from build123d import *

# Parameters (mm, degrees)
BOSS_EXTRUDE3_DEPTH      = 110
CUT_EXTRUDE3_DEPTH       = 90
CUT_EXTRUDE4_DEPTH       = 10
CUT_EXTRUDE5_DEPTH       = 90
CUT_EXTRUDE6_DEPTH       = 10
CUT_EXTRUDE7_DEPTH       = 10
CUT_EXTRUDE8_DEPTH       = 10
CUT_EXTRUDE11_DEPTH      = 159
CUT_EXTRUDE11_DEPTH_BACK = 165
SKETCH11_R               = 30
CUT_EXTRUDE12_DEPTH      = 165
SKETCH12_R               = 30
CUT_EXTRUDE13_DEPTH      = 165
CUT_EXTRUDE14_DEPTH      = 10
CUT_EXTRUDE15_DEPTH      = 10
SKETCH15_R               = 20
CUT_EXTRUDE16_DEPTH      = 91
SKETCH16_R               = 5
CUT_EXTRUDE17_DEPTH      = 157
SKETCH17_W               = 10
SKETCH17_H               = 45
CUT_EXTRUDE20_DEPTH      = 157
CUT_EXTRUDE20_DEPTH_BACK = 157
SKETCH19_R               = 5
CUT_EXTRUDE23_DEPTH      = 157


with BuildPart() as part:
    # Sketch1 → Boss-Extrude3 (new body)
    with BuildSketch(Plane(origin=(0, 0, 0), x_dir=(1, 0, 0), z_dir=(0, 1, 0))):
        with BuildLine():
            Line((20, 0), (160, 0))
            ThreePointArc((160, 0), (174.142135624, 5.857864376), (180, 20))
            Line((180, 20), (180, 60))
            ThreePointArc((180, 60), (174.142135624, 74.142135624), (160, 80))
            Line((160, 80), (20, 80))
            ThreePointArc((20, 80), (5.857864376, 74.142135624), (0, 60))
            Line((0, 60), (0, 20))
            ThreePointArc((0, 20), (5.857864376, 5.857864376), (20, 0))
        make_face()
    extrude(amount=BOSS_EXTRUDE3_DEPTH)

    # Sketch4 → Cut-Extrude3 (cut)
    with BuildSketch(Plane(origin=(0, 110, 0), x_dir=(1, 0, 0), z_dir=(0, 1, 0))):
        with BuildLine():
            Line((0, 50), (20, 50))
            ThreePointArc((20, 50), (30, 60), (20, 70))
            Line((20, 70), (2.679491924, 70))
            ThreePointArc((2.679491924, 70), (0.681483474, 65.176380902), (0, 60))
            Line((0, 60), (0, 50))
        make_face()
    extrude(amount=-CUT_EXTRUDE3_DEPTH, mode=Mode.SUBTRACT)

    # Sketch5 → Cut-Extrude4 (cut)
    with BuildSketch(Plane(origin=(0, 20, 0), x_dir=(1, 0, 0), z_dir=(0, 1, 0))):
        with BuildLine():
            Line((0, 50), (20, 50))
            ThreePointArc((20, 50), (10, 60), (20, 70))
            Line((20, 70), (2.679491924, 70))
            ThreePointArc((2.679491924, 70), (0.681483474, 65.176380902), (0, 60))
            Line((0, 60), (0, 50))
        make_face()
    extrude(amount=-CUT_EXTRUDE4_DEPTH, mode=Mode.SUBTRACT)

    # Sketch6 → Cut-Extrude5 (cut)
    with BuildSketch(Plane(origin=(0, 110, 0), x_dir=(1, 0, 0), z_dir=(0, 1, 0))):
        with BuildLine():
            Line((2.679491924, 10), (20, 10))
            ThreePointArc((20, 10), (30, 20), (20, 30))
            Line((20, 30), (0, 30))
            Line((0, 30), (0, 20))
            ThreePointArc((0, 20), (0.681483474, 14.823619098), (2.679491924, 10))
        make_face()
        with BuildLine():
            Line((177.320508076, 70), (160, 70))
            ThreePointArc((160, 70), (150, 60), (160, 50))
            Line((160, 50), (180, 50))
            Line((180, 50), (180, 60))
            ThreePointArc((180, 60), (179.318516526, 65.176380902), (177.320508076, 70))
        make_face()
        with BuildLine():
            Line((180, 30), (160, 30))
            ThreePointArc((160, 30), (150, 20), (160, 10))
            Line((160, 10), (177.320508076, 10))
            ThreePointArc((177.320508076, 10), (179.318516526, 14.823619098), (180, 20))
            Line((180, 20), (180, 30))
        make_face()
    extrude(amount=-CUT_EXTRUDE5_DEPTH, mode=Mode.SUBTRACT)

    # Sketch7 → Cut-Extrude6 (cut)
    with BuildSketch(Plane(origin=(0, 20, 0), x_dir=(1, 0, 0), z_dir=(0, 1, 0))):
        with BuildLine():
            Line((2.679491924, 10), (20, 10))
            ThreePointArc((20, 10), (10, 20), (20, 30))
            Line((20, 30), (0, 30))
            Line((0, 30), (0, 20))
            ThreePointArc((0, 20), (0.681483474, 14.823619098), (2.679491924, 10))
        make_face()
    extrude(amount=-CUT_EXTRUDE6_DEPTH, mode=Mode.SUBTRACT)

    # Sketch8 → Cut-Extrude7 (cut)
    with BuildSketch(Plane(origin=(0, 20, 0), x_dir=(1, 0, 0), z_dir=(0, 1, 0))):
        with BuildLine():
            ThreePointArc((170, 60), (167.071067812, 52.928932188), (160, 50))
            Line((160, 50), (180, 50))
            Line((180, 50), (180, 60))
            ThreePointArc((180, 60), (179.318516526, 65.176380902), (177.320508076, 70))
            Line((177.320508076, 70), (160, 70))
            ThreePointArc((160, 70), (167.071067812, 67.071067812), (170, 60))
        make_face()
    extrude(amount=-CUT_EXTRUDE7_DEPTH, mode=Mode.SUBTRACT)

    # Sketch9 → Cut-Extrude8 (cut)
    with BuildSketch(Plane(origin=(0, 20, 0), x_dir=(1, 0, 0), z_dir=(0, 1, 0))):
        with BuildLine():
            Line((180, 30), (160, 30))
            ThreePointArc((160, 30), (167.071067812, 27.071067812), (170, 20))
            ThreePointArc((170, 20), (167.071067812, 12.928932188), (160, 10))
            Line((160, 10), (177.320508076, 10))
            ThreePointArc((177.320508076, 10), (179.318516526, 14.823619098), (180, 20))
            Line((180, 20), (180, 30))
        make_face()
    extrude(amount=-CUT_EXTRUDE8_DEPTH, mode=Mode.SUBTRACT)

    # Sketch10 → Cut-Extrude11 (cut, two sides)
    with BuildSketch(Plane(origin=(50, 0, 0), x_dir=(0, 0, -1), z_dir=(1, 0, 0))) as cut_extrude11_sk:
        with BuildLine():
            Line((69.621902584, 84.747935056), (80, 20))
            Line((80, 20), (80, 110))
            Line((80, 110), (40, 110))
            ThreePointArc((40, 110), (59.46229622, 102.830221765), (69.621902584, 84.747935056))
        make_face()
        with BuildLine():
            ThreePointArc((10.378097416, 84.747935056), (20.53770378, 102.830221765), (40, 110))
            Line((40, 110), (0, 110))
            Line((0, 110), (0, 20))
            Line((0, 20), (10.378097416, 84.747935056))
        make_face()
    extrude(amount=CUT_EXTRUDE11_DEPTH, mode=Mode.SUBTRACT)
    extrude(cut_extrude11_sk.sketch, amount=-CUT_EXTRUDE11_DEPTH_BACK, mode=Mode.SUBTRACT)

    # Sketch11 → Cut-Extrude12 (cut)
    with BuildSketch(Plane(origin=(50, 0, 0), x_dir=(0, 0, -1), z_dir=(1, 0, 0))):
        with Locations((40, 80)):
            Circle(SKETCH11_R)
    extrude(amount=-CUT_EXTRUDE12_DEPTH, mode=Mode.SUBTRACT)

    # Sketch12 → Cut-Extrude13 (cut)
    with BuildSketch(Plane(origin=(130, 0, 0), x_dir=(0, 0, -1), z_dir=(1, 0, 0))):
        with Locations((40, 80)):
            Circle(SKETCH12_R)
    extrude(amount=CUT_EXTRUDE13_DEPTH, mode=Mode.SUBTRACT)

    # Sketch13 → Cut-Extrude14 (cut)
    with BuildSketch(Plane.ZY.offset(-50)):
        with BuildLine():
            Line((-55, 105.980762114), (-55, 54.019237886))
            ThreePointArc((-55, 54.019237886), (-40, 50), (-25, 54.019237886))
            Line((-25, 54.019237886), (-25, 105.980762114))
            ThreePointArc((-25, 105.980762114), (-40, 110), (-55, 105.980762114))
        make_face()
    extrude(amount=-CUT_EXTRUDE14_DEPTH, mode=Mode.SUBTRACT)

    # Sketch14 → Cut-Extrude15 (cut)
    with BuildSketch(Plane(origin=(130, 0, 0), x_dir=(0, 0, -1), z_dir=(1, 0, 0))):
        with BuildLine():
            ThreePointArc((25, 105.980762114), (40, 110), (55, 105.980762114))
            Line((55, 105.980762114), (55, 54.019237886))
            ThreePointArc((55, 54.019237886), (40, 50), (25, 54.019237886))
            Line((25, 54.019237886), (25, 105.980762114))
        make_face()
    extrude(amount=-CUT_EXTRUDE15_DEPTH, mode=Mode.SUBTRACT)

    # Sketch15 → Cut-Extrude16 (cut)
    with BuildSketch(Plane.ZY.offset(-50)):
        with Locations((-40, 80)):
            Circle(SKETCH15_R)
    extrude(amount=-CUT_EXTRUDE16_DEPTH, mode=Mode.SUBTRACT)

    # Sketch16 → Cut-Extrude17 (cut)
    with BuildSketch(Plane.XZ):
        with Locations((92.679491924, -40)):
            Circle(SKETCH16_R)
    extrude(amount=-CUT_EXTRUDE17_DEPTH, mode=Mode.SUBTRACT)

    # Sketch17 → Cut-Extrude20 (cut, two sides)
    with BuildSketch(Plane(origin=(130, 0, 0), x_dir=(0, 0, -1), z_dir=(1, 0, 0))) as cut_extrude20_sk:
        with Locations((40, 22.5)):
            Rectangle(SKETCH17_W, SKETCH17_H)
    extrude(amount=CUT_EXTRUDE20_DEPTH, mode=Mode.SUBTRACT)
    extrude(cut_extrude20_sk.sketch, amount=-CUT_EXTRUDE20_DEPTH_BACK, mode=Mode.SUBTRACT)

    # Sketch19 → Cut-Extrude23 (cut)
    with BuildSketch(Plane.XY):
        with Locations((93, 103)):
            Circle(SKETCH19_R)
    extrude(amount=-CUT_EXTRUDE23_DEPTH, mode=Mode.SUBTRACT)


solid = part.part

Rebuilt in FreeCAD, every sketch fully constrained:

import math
import FreeCAD as App
import Part
import Sketcher


def add_polygon(sketch, points):
    """Adds a closed chain of lines whose ends are joined by coincident constraints."""
    first, n = sketch.GeometryCount, len(points)
    for a, b in zip(points, points[1:] + points[:1]):
        sketch.addGeometry(Part.LineSegment(App.Vector(*a, 0), App.Vector(*b, 0)), False)
    for i in range(n):
        sketch.addConstraint(Sketcher.Constraint("Coincident", first + i, 2, first + (i + 1) % n, 1))

doc = App.newDocument("Part")
body = doc.addObject("PartDesign::Body", "Body")

# Sketch on XZ plane
sketch1 = body.newObject("Sketcher::SketchObject", "Sketch")
sketch1.AttachmentSupport = (doc.getObject("XZ_Plane"), [""])
sketch1.MapMode = "FlatFace"
sketch1.addGeometry(Part.LineSegment(App.Vector(20, 0, 0), App.Vector(160, 0, 0)), False)
sketch1.addGeometry(Part.ArcOfCircle(Part.Circle(App.Vector(160, -20, 0), App.Vector(0, 0, 1), 20), math.radians(0), math.radians(90)), False)
sketch1.addGeometry(Part.LineSegment(App.Vector(180, -20, 0), App.Vector(180, -60, 0)), False)
sketch1.addGeometry(Part.ArcOfCircle(Part.Circle(App.Vector(160, -60, 0), App.Vector(0, 0, 1), 20), math.radians(-90), math.radians(0)), False)
sketch1.addGeometry(Part.LineSegment(App.Vector(160, -80, 0), App.Vector(20, -80, 0)), False)
sketch1.addGeometry(Part.ArcOfCircle(Part.Circle(App.Vector(20, -60, 0), App.Vector(0, 0, 1), 20), math.radians(180), math.radians(270)), False)
sketch1.addGeometry(Part.LineSegment(App.Vector(0, -60, 0), App.Vector(0, -20, 0)), False)
sketch1.addGeometry(Part.ArcOfCircle(Part.Circle(App.Vector(20, -20, 0), App.Vector(0, 0, 1), 20), math.radians(90), math.radians(180)), False)
sketch1.addConstraint(Sketcher.Constraint("Tangent", 0, 2, 1, 2))
sketch1.addConstraint(Sketcher.Constraint("Tangent", 1, 1, 2, 1))
sketch1.addConstraint(Sketcher.Constraint("Tangent", 2, 2, 3, 2))
sketch1.addConstraint(Sketcher.Constraint("Tangent", 3, 1, 4, 1))
sketch1.addConstraint(Sketcher.Constraint("Tangent", 4, 2, 5, 2))
sketch1.addConstraint(Sketcher.Constraint("Tangent", 5, 1, 6, 1))
sketch1.addConstraint(Sketcher.Constraint("Tangent", 6, 2, 7, 2))
sketch1.addConstraint(Sketcher.Constraint("Tangent", 7, 1, 0, 1))
sketch1.addConstraint(Sketcher.Constraint("Horizontal", 0))
sketch1.addConstraint(Sketcher.Constraint("Vertical", 2))
sketch1.addConstraint(Sketcher.Constraint("Horizontal", 4))
sketch1.addConstraint(Sketcher.Constraint("Vertical", 6))
sketch1.addConstraint(Sketcher.Constraint("Equal", 1, 3))
sketch1.addConstraint(Sketcher.Constraint("Equal", 3, 5))
sketch1.addConstraint(Sketcher.Constraint("Equal", 5, 7))
sketch1.addConstraint(Sketcher.Constraint("PointOnObject", 0, 2, -1))
sketch1.addConstraint(Sketcher.Constraint("PointOnObject", 5, 1, -2))
sketch1.addConstraint(Sketcher.Constraint("Radius", 1, 20.0))
sketch1.addConstraint(Sketcher.Constraint("DistanceX", 0, 1, 0, 2, 140.0))
sketch1.addConstraint(Sketcher.Constraint("DistanceY", 2, 2, 2, 1, 40.0))
pad1 = body.newObject("PartDesign::Pad", "Pad")
pad1.Profile = sketch1
pad1.Length = 110
pad1.Reversed = True

# Sketch on XZ plane
sketch2 = body.newObject("Sketcher::SketchObject", "Sketch001")
sketch2.AttachmentSupport = (doc.getObject("XZ_Plane"), [""])
sketch2.MapMode = "FlatFace"
sketch2.AttachmentOffset = App.Placement(App.Vector(0, 0, -110), App.Rotation())
sketch2.addGeometry(Part.LineSegment(App.Vector(0, -50, 0), App.Vector(20, -50, 0)), False)
sketch2.addGeometry(Part.ArcOfCircle(Part.Circle(App.Vector(20, -60, 0), App.Vector(0, 0, 1), 10), math.radians(-90), math.radians(90)), False)
sketch2.addGeometry(Part.LineSegment(App.Vector(20, -70, 0), App.Vector(3, -70, 0)), False)
sketch2.addGeometry(Part.ArcOfCircle(Part.Circle(App.Vector(20, -60, 0), App.Vector(0, 0, 1), 20), math.radians(180), math.radians(210)), False)
sketch2.addGeometry(Part.LineSegment(App.Vector(0, -60, 0), App.Vector(0, -50, 0)), False)
sketch2.addConstraint(Sketcher.Constraint("Tangent", 0, 2, 1, 2))
sketch2.addConstraint(Sketcher.Constraint("Tangent", 1, 1, 2, 1))
sketch2.addConstraint(Sketcher.Constraint("Coincident", 2, 2, 3, 2))
sketch2.addConstraint(Sketcher.Constraint("Tangent", 3, 1, 4, 1))
sketch2.addConstraint(Sketcher.Constraint("Coincident", 4, 2, 0, 1))
sketch2.addConstraint(Sketcher.Constraint("Horizontal", 0))
sketch2.addConstraint(Sketcher.Constraint("Horizontal", 2))
sketch2.addConstraint(Sketcher.Constraint("Vertical", 4))
sketch2.addConstraint(Sketcher.Constraint("Coincident", 3, 3, 1, 3))
sketch2.addConstraint(Sketcher.Constraint("PointOnObject", 3, 1, -2))
sketch2.addConstraint(Sketcher.Constraint("Radius", 1, 10.0))
sketch2.addConstraint(Sketcher.Constraint("Radius", 3, 20.0))
sketch2.addConstraint(Sketcher.Constraint("DistanceY", 1, 3, -1, 1, 60.0))
pocket1 = body.newObject("PartDesign::Pocket", "Pocket")
pocket1.Profile = sketch2
pocket1.Length = 90
pocket1.Reversed = True

# Sketch on XZ plane
sketch3 = body.newObject("Sketcher::SketchObject", "Sketch002")
sketch3.AttachmentSupport = (doc.getObject("XZ_Plane"), [""])
sketch3.MapMode = "FlatFace"
sketch3.AttachmentOffset = App.Placement(App.Vector(0, 0, -20), App.Rotation())
sketch3.addGeometry(Part.LineSegment(App.Vector(0, -50, 0), App.Vector(20, -50, 0)), False)
sketch3.addGeometry(Part.ArcOfCircle(Part.Circle(App.Vector(20, -60, 0), App.Vector(0, 0, 1), 10), math.radians(90), math.radians(270)), False)
sketch3.addGeometry(Part.LineSegment(App.Vector(20, -70, 0), App.Vector(3, -70, 0)), False)
sketch3.addGeometry(Part.ArcOfCircle(Part.Circle(App.Vector(20, -60, 0), App.Vector(0, 0, 1), 20), math.radians(180), math.radians(210)), False)
sketch3.addGeometry(Part.LineSegment(App.Vector(0, -60, 0), App.Vector(0, -50, 0)), False)
sketch3.addConstraint(Sketcher.Constraint("Tangent", 0, 2, 1, 1))
sketch3.addConstraint(Sketcher.Constraint("Tangent", 1, 2, 2, 1))
sketch3.addConstraint(Sketcher.Constraint("Coincident", 2, 2, 3, 2))
sketch3.addConstraint(Sketcher.Constraint("Tangent", 3, 1, 4, 1))
sketch3.addConstraint(Sketcher.Constraint("Coincident", 4, 2, 0, 1))
sketch3.addConstraint(Sketcher.Constraint("Horizontal", 0))
sketch3.addConstraint(Sketcher.Constraint("Horizontal", 2))
sketch3.addConstraint(Sketcher.Constraint("Vertical", 4))
sketch3.addConstraint(Sketcher.Constraint("Coincident", 3, 3, 1, 3))
sketch3.addConstraint(Sketcher.Constraint("PointOnObject", 3, 1, -2))
sketch3.addConstraint(Sketcher.Constraint("Radius", 1, 10.0))
sketch3.addConstraint(Sketcher.Constraint("Radius", 3, 20.0))
sketch3.addConstraint(Sketcher.Constraint("DistanceY", 1, 3, -1, 1, 60.0))
pocket2 = body.newObject("PartDesign::Pocket", "Pocket001")
pocket2.Profile = sketch3
pocket2.Length = 10
pocket2.Reversed = True

# Sketch on XZ plane
sketch4 = body.newObject("Sketcher::SketchObject", "Sketch003")
sketch4.AttachmentSupport = (doc.getObject("XZ_Plane"), [""])
sketch4.MapMode = "FlatFace"
sketch4.AttachmentOffset = App.Placement(App.Vector(0, 0, -110), App.Rotation())
sketch4.addGeometry(Part.LineSegment(App.Vector(3, -10, 0), App.Vector(20, -10, 0)), False)
sketch4.addGeometry(Part.ArcOfCircle(Part.Circle(App.Vector(20, -20, 0), App.Vector(0, 0, 1), 10), math.radians(-90), math.radians(90)), False)
sketch4.addGeometry(Part.LineSegment(App.Vector(20, -30, 0), App.Vector(0, -30, 0)), False)
sketch4.addGeometry(Part.LineSegment(App.Vector(0, -30, 0), App.Vector(0, -20, 0)), False)
sketch4.addGeometry(Part.ArcOfCircle(Part.Circle(App.Vector(20, -20, 0), App.Vector(0, 0, 1), 20), math.radians(150), math.radians(180)), False)
sketch4.addGeometry(Part.LineSegment(App.Vector(177, -70, 0), App.Vector(160, -70, 0)), False)
sketch4.addGeometry(Part.ArcOfCircle(Part.Circle(App.Vector(160, -60, 0), App.Vector(0, 0, 1), 10), math.radians(90), math.radians(270)), False)
sketch4.addGeometry(Part.LineSegment(App.Vector(160, -50, 0), App.Vector(180, -50, 0)), False)
sketch4.addGeometry(Part.LineSegment(App.Vector(180, -50, 0), App.Vector(180, -60, 0)), False)
sketch4.addGeometry(Part.ArcOfCircle(Part.Circle(App.Vector(160, -60, 0), App.Vector(0, 0, 1), 20), math.radians(-30), math.radians(0)), False)
sketch4.addGeometry(Part.LineSegment(App.Vector(180, -30, 0), App.Vector(160, -30, 0)), False)
sketch4.addGeometry(Part.ArcOfCircle(Part.Circle(App.Vector(160, -20, 0), App.Vector(0, 0, 1), 10), math.radians(90), math.radians(270)), False)
sketch4.addGeometry(Part.LineSegment(App.Vector(160, -10, 0), App.Vector(177, -10, 0)), False)
sketch4.addGeometry(Part.ArcOfCircle(Part.Circle(App.Vector(160, -20, 0), App.Vector(0, 0, 1), 20), math.radians(0), math.radians(30)), False)
sketch4.addGeometry(Part.LineSegment(App.Vector(180, -20, 0), App.Vector(180, -30, 0)), False)
sketch4.addConstraint(Sketcher.Constraint("Tangent", 0, 2, 1, 2))
sketch4.addConstraint(Sketcher.Constraint("Tangent", 1, 1, 2, 1))
sketch4.addConstraint(Sketcher.Constraint("Coincident", 2, 2, 3, 1))
sketch4.addConstraint(Sketcher.Constraint("Tangent", 3, 2, 4, 2))
sketch4.addConstraint(Sketcher.Constraint("Coincident", 4, 1, 0, 1))
sketch4.addConstraint(Sketcher.Constraint("Tangent", 5, 2, 6, 2))
sketch4.addConstraint(Sketcher.Constraint("Tangent", 6, 1, 7, 1))
sketch4.addConstraint(Sketcher.Constraint("Coincident", 7, 2, 8, 1))
sketch4.addConstraint(Sketcher.Constraint("Tangent", 8, 2, 9, 2))
sketch4.addConstraint(Sketcher.Constraint("Coincident", 9, 1, 5, 1))
sketch4.addConstraint(Sketcher.Constraint("Tangent", 10, 2, 11, 2))
sketch4.addConstraint(Sketcher.Constraint("Tangent", 11, 1, 12, 1))
sketch4.addConstraint(Sketcher.Constraint("Coincident", 12, 2, 13, 2))
sketch4.addConstraint(Sketcher.Constraint("Tangent", 13, 1, 14, 1))
sketch4.addConstraint(Sketcher.Constraint("Coincident", 14, 2, 10, 1))
sketch4.addConstraint(Sketcher.Constraint("Horizontal", 0))
sketch4.addConstraint(Sketcher.Constraint("Horizontal", 2))
sketch4.addConstraint(Sketcher.Constraint("Vertical", 3))
sketch4.addConstraint(Sketcher.Constraint("Horizontal", 5))
sketch4.addConstraint(Sketcher.Constraint("Horizontal", 7))
sketch4.addConstraint(Sketcher.Constraint("Vertical", 8))
sketch4.addConstraint(Sketcher.Constraint("Horizontal", 10))
sketch4.addConstraint(Sketcher.Constraint("Horizontal", 12))
sketch4.addConstraint(Sketcher.Constraint("Vertical", 14))
sketch4.addConstraint(Sketcher.Constraint("Coincident", 4, 3, 1, 3))
sketch4.addConstraint(Sketcher.Constraint("Coincident", 9, 3, 6, 3))
sketch4.addConstraint(Sketcher.Constraint("Coincident", 13, 3, 11, 3))
sketch4.addConstraint(Sketcher.Constraint("Equal", 1, 6))
sketch4.addConstraint(Sketcher.Constraint("Equal", 4, 9))
sketch4.addConstraint(Sketcher.Constraint("Equal", 6, 11))
sketch4.addConstraint(Sketcher.Constraint("Equal", 9, 13))
sketch4.addConstraint(Sketcher.Constraint("PointOnObject", 2, 2, -2))
sketch4.addConstraint(Sketcher.Constraint("Horizontal", 4, 3, 11, 3))
sketch4.addConstraint(Sketcher.Constraint("Vertical", 9, 3, 11, 3))
sketch4.addConstraint(Sketcher.Constraint("Radius", 1, 10.0))
sketch4.addConstraint(Sketcher.Constraint("Radius", 4, 20.0))
sketch4.addConstraint(Sketcher.Constraint("DistanceY", 1, 3, -1, 1, 20.0))
sketch4.addConstraint(Sketcher.Constraint("DistanceX", -1, 1, 6, 3, 160.0))
sketch4.addConstraint(Sketcher.Constraint("DistanceY", 6, 3, -1, 1, 60.0))
pocket3 = body.newObject("PartDesign::Pocket", "Pocket002")
pocket3.Profile = sketch4
pocket3.Length = 90
pocket3.Reversed = True

# Sketch on XZ plane
sketch5 = body.newObject("Sketcher::SketchObject", "Sketch004")
sketch5.AttachmentSupport = (doc.getObject("XZ_Plane"), [""])
sketch5.MapMode = "FlatFace"
sketch5.AttachmentOffset = App.Placement(App.Vector(0, 0, -20), App.Rotation())
sketch5.addGeometry(Part.LineSegment(App.Vector(3, -10, 0), App.Vector(20, -10, 0)), False)
sketch5.addGeometry(Part.ArcOfCircle(Part.Circle(App.Vector(20, -20, 0), App.Vector(0, 0, 1), 10), math.radians(90), math.radians(270)), False)
sketch5.addGeometry(Part.LineSegment(App.Vector(20, -30, 0), App.Vector(0, -30, 0)), False)
sketch5.addGeometry(Part.LineSegment(App.Vector(0, -30, 0), App.Vector(0, -20, 0)), False)
sketch5.addGeometry(Part.ArcOfCircle(Part.Circle(App.Vector(20, -20, 0), App.Vector(0, 0, 1), 20), math.radians(150), math.radians(180)), False)
sketch5.addConstraint(Sketcher.Constraint("Tangent", 0, 2, 1, 1))
sketch5.addConstraint(Sketcher.Constraint("Tangent", 1, 2, 2, 1))
sketch5.addConstraint(Sketcher.Constraint("Coincident", 2, 2, 3, 1))
sketch5.addConstraint(Sketcher.Constraint("Tangent", 3, 2, 4, 2))
sketch5.addConstraint(Sketcher.Constraint("Coincident", 4, 1, 0, 1))
sketch5.addConstraint(Sketcher.Constraint("Horizontal", 0))
sketch5.addConstraint(Sketcher.Constraint("Horizontal", 2))
sketch5.addConstraint(Sketcher.Constraint("Vertical", 3))
sketch5.addConstraint(Sketcher.Constraint("Coincident", 4, 3, 1, 3))
sketch5.addConstraint(Sketcher.Constraint("PointOnObject", 2, 2, -2))
sketch5.addConstraint(Sketcher.Constraint("Radius", 1, 10.0))
sketch5.addConstraint(Sketcher.Constraint("Radius", 4, 20.0))
sketch5.addConstraint(Sketcher.Constraint("DistanceY", 1, 3, -1, 1, 20.0))
pocket4 = body.newObject("PartDesign::Pocket", "Pocket003")
pocket4.Profile = sketch5
pocket4.Length = 10
pocket4.Reversed = True

# Sketch on XZ plane
sketch6 = body.newObject("Sketcher::SketchObject", "Sketch005")
sketch6.AttachmentSupport = (doc.getObject("XZ_Plane"), [""])
sketch6.MapMode = "FlatFace"
sketch6.AttachmentOffset = App.Placement(App.Vector(0, 0, -20), App.Rotation())
sketch6.addGeometry(Part.ArcOfCircle(Part.Circle(App.Vector(160, -60, 0), App.Vector(0, 0, 1), 10), math.radians(0), math.radians(90)), False)
sketch6.addGeometry(Part.LineSegment(App.Vector(160, -50, 0), App.Vector(180, -50, 0)), False)
sketch6.addGeometry(Part.LineSegment(App.Vector(180, -50, 0), App.Vector(180, -60, 0)), False)
sketch6.addGeometry(Part.ArcOfCircle(Part.Circle(App.Vector(160, -60, 0), App.Vector(0, 0, 1), 20), math.radians(-30), math.radians(0)), False)
sketch6.addGeometry(Part.LineSegment(App.Vector(177, -70, 0), App.Vector(160, -70, 0)), False)
sketch6.addGeometry(Part.ArcOfCircle(Part.Circle(App.Vector(160, -60, 0), App.Vector(0, 0, 1), 10), math.radians(-90), math.radians(0)), False)
sketch6.addConstraint(Sketcher.Constraint("Tangent", 0, 2, 1, 1))
sketch6.addConstraint(Sketcher.Constraint("Coincident", 1, 2, 2, 1))
sketch6.addConstraint(Sketcher.Constraint("Tangent", 2, 2, 3, 2))
sketch6.addConstraint(Sketcher.Constraint("Coincident", 3, 1, 4, 1))
sketch6.addConstraint(Sketcher.Constraint("Tangent", 4, 2, 5, 1))
sketch6.addConstraint(Sketcher.Constraint("Tangent", 5, 2, 0, 1))
sketch6.addConstraint(Sketcher.Constraint("Horizontal", 1))
sketch6.addConstraint(Sketcher.Constraint("Vertical", 2))
sketch6.addConstraint(Sketcher.Constraint("Horizontal", 4))
sketch6.addConstraint(Sketcher.Constraint("Coincident", 3, 3, 0, 3))
sketch6.addConstraint(Sketcher.Constraint("Equal", 0, 5))
sketch6.addConstraint(Sketcher.Constraint("Horizontal", 2, 2, 5, 2))
sketch6.addConstraint(Sketcher.Constraint("Radius", 0, 10.0))
sketch6.addConstraint(Sketcher.Constraint("Radius", 3, 20.0))
sketch6.addConstraint(Sketcher.Constraint("DistanceX", -1, 1, 0, 3, 160.0))
sketch6.addConstraint(Sketcher.Constraint("DistanceY", 0, 3, -1, 1, 60.0))
pocket5 = body.newObject("PartDesign::Pocket", "Pocket004")
pocket5.Profile = sketch6
pocket5.Length = 10
pocket5.Reversed = True

# Sketch on XZ plane
sketch7 = body.newObject("Sketcher::SketchObject", "Sketch006")
sketch7.AttachmentSupport = (doc.getObject("XZ_Plane"), [""])
sketch7.MapMode = "FlatFace"
sketch7.AttachmentOffset = App.Placement(App.Vector(0, 0, -20), App.Rotation())
sketch7.addGeometry(Part.LineSegment(App.Vector(180, -30, 0), App.Vector(160, -30, 0)), False)
sketch7.addGeometry(Part.ArcOfCircle(Part.Circle(App.Vector(160, -20, 0), App.Vector(0, 0, 1), 10), math.radians(-90), math.radians(0)), False)
sketch7.addGeometry(Part.ArcOfCircle(Part.Circle(App.Vector(160, -20, 0), App.Vector(0, 0, 1), 10), math.radians(0), math.radians(90)), False)
sketch7.addGeometry(Part.LineSegment(App.Vector(160, -10, 0), App.Vector(177, -10, 0)), False)
sketch7.addGeometry(Part.ArcOfCircle(Part.Circle(App.Vector(160, -20, 0), App.Vector(0, 0, 1), 20), math.radians(0), math.radians(30)), False)
sketch7.addGeometry(Part.LineSegment(App.Vector(180, -20, 0), App.Vector(180, -30, 0)), False)
sketch7.addConstraint(Sketcher.Constraint("Tangent", 0, 2, 1, 1))
sketch7.addConstraint(Sketcher.Constraint("Tangent", 1, 2, 2, 1))
sketch7.addConstraint(Sketcher.Constraint("Tangent", 2, 2, 3, 1))
sketch7.addConstraint(Sketcher.Constraint("Coincident", 3, 2, 4, 2))
sketch7.addConstraint(Sketcher.Constraint("Tangent", 4, 1, 5, 1))
sketch7.addConstraint(Sketcher.Constraint("Coincident", 5, 2, 0, 1))
sketch7.addConstraint(Sketcher.Constraint("Horizontal", 0))
sketch7.addConstraint(Sketcher.Constraint("Horizontal", 3))
sketch7.addConstraint(Sketcher.Constraint("Vertical", 5))
sketch7.addConstraint(Sketcher.Constraint("Coincident", 4, 3, 1, 3))
sketch7.addConstraint(Sketcher.Constraint("Equal", 1, 2))
sketch7.addConstraint(Sketcher.Constraint("Horizontal", 4, 3, 1, 2))
sketch7.addConstraint(Sketcher.Constraint("Radius", 1, 10.0))
sketch7.addConstraint(Sketcher.Constraint("Radius", 4, 20.0))
sketch7.addConstraint(Sketcher.Constraint("DistanceX", -1, 1, 1, 3, 160.0))
sketch7.addConstraint(Sketcher.Constraint("DistanceY", 1, 3, -1, 1, 20.0))
pocket6 = body.newObject("PartDesign::Pocket", "Pocket005")
pocket6.Profile = sketch7
pocket6.Length = 10
pocket6.Reversed = True

# Sketch on YZ plane
sketch8 = body.newObject("Sketcher::SketchObject", "Sketch007")
sketch8.AttachmentSupport = (doc.getObject("YZ_Plane"), [""])
sketch8.MapMode = "FlatFace"
sketch8.AttachmentOffset = App.Placement(App.Vector(0, 0, 50), App.Rotation())
sketch8.addGeometry(Part.LineSegment(App.Vector(85, -70, 0), App.Vector(20, -80, 0)), False)
sketch8.addGeometry(Part.LineSegment(App.Vector(20, -80, 0), App.Vector(110, -80, 0)), False)
sketch8.addGeometry(Part.LineSegment(App.Vector(110, -80, 0), App.Vector(110, -40, 0)), False)
sketch8.addGeometry(Part.ArcOfCircle(Part.Circle(App.Vector(80, -40, 0), App.Vector(0, 0, 1), 30), math.radians(-81), math.radians(0)), False)
sketch8.addGeometry(Part.ArcOfCircle(Part.Circle(App.Vector(80, -40, 0), App.Vector(0, 0, 1), 30), math.radians(0), math.radians(81)), False)
sketch8.addGeometry(Part.LineSegment(App.Vector(110, -40, 0), App.Vector(110, 0, 0)), False)
sketch8.addGeometry(Part.LineSegment(App.Vector(110, 0, 0), App.Vector(20, 0, 0)), False)
sketch8.addGeometry(Part.LineSegment(App.Vector(20, 0, 0), App.Vector(85, -10, 0)), False)
sketch8.addConstraint(Sketcher.Constraint("Coincident", 0, 2, 1, 1))
sketch8.addConstraint(Sketcher.Constraint("Coincident", 1, 2, 2, 1))
sketch8.addConstraint(Sketcher.Constraint("Tangent", 2, 2, 3, 2))
sketch8.addConstraint(Sketcher.Constraint("Tangent", 3, 1, 0, 1))
sketch8.addConstraint(Sketcher.Constraint("Tangent", 4, 1, 5, 1))
sketch8.addConstraint(Sketcher.Constraint("Coincident", 5, 2, 6, 1))
sketch8.addConstraint(Sketcher.Constraint("Coincident", 6, 2, 7, 1))
sketch8.addConstraint(Sketcher.Constraint("Tangent", 7, 2, 4, 2))
sketch8.addConstraint(Sketcher.Constraint("Horizontal", 1))
sketch8.addConstraint(Sketcher.Constraint("Vertical", 2))
sketch8.addConstraint(Sketcher.Constraint("Vertical", 5))
sketch8.addConstraint(Sketcher.Constraint("Horizontal", 6))
sketch8.addConstraint(Sketcher.Constraint("Coincident", 4, 3, 3, 3))
sketch8.addConstraint(Sketcher.Constraint("Equal", 3, 4))
sketch8.addConstraint(Sketcher.Constraint("PointOnObject", 5, 2, -1))
sketch8.addConstraint(Sketcher.Constraint("Vertical", 0, 2, 6, 2))
sketch8.addConstraint(Sketcher.Constraint("Vertical", 3, 1, 7, 2))
sketch8.addConstraint(Sketcher.Constraint("Radius", 3, 30.0))
sketch8.addConstraint(Sketcher.Constraint("DistanceX", 1, 1, 1, 2, 90.0))
sketch8.addConstraint(Sketcher.Constraint("DistanceY", 2, 1, 2, 2, 40.0))
sketch8.addConstraint(Sketcher.Constraint("DistanceX", -1, 1, 3, 3, 80.0))
pocket7 = body.newObject("PartDesign::Pocket", "Pocket006")
pocket7.Profile = sketch8
pocket7.Type = "ThroughAll"
pocket7.Midplane = True

# Sketch on YZ plane
sketch9 = body.newObject("Sketcher::SketchObject", "Sketch008")
sketch9.AttachmentSupport = (doc.getObject("YZ_Plane"), [""])
sketch9.MapMode = "FlatFace"
sketch9.AttachmentOffset = App.Placement(App.Vector(0, 0, 50), App.Rotation())
sketch9.addGeometry(Part.Circle(App.Vector(80, -40, 0), App.Vector(0, 0, 1), 30), False)
sketch9.addConstraint(Sketcher.Constraint("Diameter", 0, 60.0))
sketch9.addConstraint(Sketcher.Constraint("DistanceX", -1, 1, 0, 3, 80.0))
sketch9.addConstraint(Sketcher.Constraint("DistanceY", 0, 3, -1, 1, 40.0))
pocket8 = body.newObject("PartDesign::Pocket", "Pocket007")
pocket8.Profile = sketch9
pocket8.Length = 165

# Sketch on YZ plane
sketch10 = body.newObject("Sketcher::SketchObject", "Sketch009")
sketch10.AttachmentSupport = (doc.getObject("YZ_Plane"), [""])
sketch10.MapMode = "FlatFace"
sketch10.AttachmentOffset = App.Placement(App.Vector(0, 0, 130), App.Rotation())
sketch10.addGeometry(Part.Circle(App.Vector(80, -40, 0), App.Vector(0, 0, 1), 30), False)
sketch10.addConstraint(Sketcher.Constraint("Diameter", 0, 60.0))
sketch10.addConstraint(Sketcher.Constraint("DistanceX", -1, 1, 0, 3, 80.0))
sketch10.addConstraint(Sketcher.Constraint("DistanceY", 0, 3, -1, 1, 40.0))
pocket9 = body.newObject("PartDesign::Pocket", "Pocket008")
pocket9.Profile = sketch10
pocket9.Length = 165
pocket9.Reversed = True

# Sketch on YZ plane
sketch11 = body.newObject("Sketcher::SketchObject", "Sketch010")
sketch11.AttachmentSupport = (doc.getObject("YZ_Plane"), [""])
sketch11.MapMode = "FlatFace"
sketch11.AttachmentOffset = App.Placement(App.Vector(0, 0, 50), App.Rotation())
sketch11.addGeometry(Part.LineSegment(App.Vector(106, -55, 0), App.Vector(54, -55, 0)), False)
sketch11.addGeometry(Part.ArcOfCircle(Part.Circle(App.Vector(80, -40, 0), App.Vector(0, 0, 1), 30), math.radians(150), math.radians(210)), False)
sketch11.addGeometry(Part.LineSegment(App.Vector(54, -25, 0), App.Vector(106, -25, 0)), False)
sketch11.addGeometry(Part.ArcOfCircle(Part.Circle(App.Vector(80, -40, 0), App.Vector(0, 0, 1), 30), math.radians(-30), math.radians(30)), False)
sketch11.addConstraint(Sketcher.Constraint("Coincident", 0, 2, 1, 2))
sketch11.addConstraint(Sketcher.Constraint("Coincident", 1, 1, 2, 1))
sketch11.addConstraint(Sketcher.Constraint("Coincident", 2, 2, 3, 2))
sketch11.addConstraint(Sketcher.Constraint("Coincident", 3, 1, 0, 1))
sketch11.addConstraint(Sketcher.Constraint("Horizontal", 0))
sketch11.addConstraint(Sketcher.Constraint("Horizontal", 2))
sketch11.addConstraint(Sketcher.Constraint("Coincident", 3, 3, 1, 3))
sketch11.addConstraint(Sketcher.Constraint("Equal", 1, 3))
sketch11.addConstraint(Sketcher.Constraint("Vertical", 0, 2, 1, 1))
sketch11.addConstraint(Sketcher.Constraint("Radius", 1, 30.0))
sketch11.addConstraint(Sketcher.Constraint("DistanceX", -1, 1, 1, 3, 80.0))
sketch11.addConstraint(Sketcher.Constraint("DistanceY", 1, 3, -1, 1, 40.0))
sketch11.addConstraint(Sketcher.Constraint("DistanceY", 0, 2, -1, 1, 55.0))
pocket10 = body.newObject("PartDesign::Pocket", "Pocket009")
pocket10.Profile = sketch11
pocket10.Length = 10
pocket10.Reversed = True

# Sketch on YZ plane
sketch12 = body.newObject("Sketcher::SketchObject", "Sketch011")
sketch12.AttachmentSupport = (doc.getObject("YZ_Plane"), [""])
sketch12.MapMode = "FlatFace"
sketch12.AttachmentOffset = App.Placement(App.Vector(0, 0, 130), App.Rotation())
sketch12.addGeometry(Part.ArcOfCircle(Part.Circle(App.Vector(80, -40, 0), App.Vector(0, 0, 1), 30), math.radians(-30), math.radians(30)), False)
sketch12.addGeometry(Part.LineSegment(App.Vector(106, -25, 0), App.Vector(54, -25, 0)), False)
sketch12.addGeometry(Part.ArcOfCircle(Part.Circle(App.Vector(80, -40, 0), App.Vector(0, 0, 1), 30), math.radians(150), math.radians(210)), False)
sketch12.addGeometry(Part.LineSegment(App.Vector(54, -55, 0), App.Vector(106, -55, 0)), False)
sketch12.addConstraint(Sketcher.Constraint("Coincident", 0, 2, 1, 1))
sketch12.addConstraint(Sketcher.Constraint("Coincident", 1, 2, 2, 1))
sketch12.addConstraint(Sketcher.Constraint("Coincident", 2, 2, 3, 1))
sketch12.addConstraint(Sketcher.Constraint("Coincident", 3, 2, 0, 1))
sketch12.addConstraint(Sketcher.Constraint("Horizontal", 1))
sketch12.addConstraint(Sketcher.Constraint("Horizontal", 3))
sketch12.addConstraint(Sketcher.Constraint("Coincident", 2, 3, 0, 3))
sketch12.addConstraint(Sketcher.Constraint("Equal", 0, 2))
sketch12.addConstraint(Sketcher.Constraint("Vertical", 1, 2, 2, 2))
sketch12.addConstraint(Sketcher.Constraint("Radius", 0, 30.0))
sketch12.addConstraint(Sketcher.Constraint("DistanceX", -1, 1, 0, 3, 80.0))
sketch12.addConstraint(Sketcher.Constraint("DistanceY", 0, 3, -1, 1, 40.0))
sketch12.addConstraint(Sketcher.Constraint("DistanceY", 0, 2, -1, 1, 25.0))
pocket11 = body.newObject("PartDesign::Pocket", "Pocket010")
pocket11.Profile = sketch12
pocket11.Length = 10

# Sketch on YZ plane
sketch13 = body.newObject("Sketcher::SketchObject", "Sketch012")
sketch13.AttachmentSupport = (doc.getObject("YZ_Plane"), [""])
sketch13.MapMode = "FlatFace"
sketch13.AttachmentOffset = App.Placement(App.Vector(0, 0, 50), App.Rotation())
sketch13.addGeometry(Part.Circle(App.Vector(80, -40, 0), App.Vector(0, 0, 1), 20), False)
sketch13.addConstraint(Sketcher.Constraint("Diameter", 0, 40.0))
sketch13.addConstraint(Sketcher.Constraint("DistanceX", -1, 1, 0, 3, 80.0))
sketch13.addConstraint(Sketcher.Constraint("DistanceY", 0, 3, -1, 1, 40.0))
pocket12 = body.newObject("PartDesign::Pocket", "Pocket011")
pocket12.Profile = sketch13
pocket12.Length = 91
pocket12.Reversed = True

# Sketch on XZ plane
sketch14 = body.newObject("Sketcher::SketchObject", "Sketch013")
sketch14.AttachmentSupport = (doc.getObject("XZ_Plane"), [""])
sketch14.MapMode = "FlatFace"
sketch14.addGeometry(Part.Circle(App.Vector(93, -40, 0), App.Vector(0, 0, 1), 5), False)
sketch14.addConstraint(Sketcher.Constraint("Diameter", 0, 10.0))
sketch14.addConstraint(Sketcher.Constraint("DistanceY", 0, 3, -1, 1, 40.0))
sketch14.addConstraint(Sketcher.Constraint("DistanceX", -1, 1, 0, 3, 92.679492))
pocket13 = body.newObject("PartDesign::Pocket", "Pocket012")
pocket13.Profile = sketch14
pocket13.Length = 157

# Sketch on YZ plane
sketch15 = body.newObject("Sketcher::SketchObject", "Sketch014")
sketch15.AttachmentSupport = (doc.getObject("YZ_Plane"), [""])
sketch15.MapMode = "FlatFace"
sketch15.AttachmentOffset = App.Placement(App.Vector(0, 0, 130), App.Rotation())
add_polygon(sketch15, [(45, -35), (0, -35), (0, -45), (45, -45)])  # lines 0-3
sketch15.addConstraint(Sketcher.Constraint("Horizontal", 0))
sketch15.addConstraint(Sketcher.Constraint("Vertical", 1))
sketch15.addConstraint(Sketcher.Constraint("Horizontal", 2))
sketch15.addConstraint(Sketcher.Constraint("Vertical", 3))
sketch15.addConstraint(Sketcher.Constraint("PointOnObject", 0, 2, -2))
sketch15.addConstraint(Sketcher.Constraint("DistanceX", 0, 2, 0, 1, 45.0))
sketch15.addConstraint(Sketcher.Constraint("DistanceY", 1, 2, 1, 1, 10.0))
sketch15.addConstraint(Sketcher.Constraint("DistanceY", 0, 2, -1, 1, 35.0))
pocket14 = body.newObject("PartDesign::Pocket", "Pocket013")
pocket14.Profile = sketch15
pocket14.Type = "ThroughAll"
pocket14.Midplane = True

# Sketch on XY plane
sketch16 = body.newObject("Sketcher::SketchObject", "Sketch015")
sketch16.AttachmentSupport = (doc.getObject("XY_Plane"), [""])
sketch16.MapMode = "FlatFace"
sketch16.addGeometry(Part.Circle(App.Vector(93, 103, 0), App.Vector(0, 0, 1), 5), False)
sketch16.addConstraint(Sketcher.Constraint("Diameter", 0, 10.0))
sketch16.addConstraint(Sketcher.Constraint("DistanceX", -1, 1, 0, 3, 93.0))
sketch16.addConstraint(Sketcher.Constraint("DistanceY", -1, 1, 0, 3, 103.0))
pocket15 = body.newObject("PartDesign::Pocket", "Pocket014")
pocket15.Profile = sketch16
pocket15.Length = 157

doc.recompute()
